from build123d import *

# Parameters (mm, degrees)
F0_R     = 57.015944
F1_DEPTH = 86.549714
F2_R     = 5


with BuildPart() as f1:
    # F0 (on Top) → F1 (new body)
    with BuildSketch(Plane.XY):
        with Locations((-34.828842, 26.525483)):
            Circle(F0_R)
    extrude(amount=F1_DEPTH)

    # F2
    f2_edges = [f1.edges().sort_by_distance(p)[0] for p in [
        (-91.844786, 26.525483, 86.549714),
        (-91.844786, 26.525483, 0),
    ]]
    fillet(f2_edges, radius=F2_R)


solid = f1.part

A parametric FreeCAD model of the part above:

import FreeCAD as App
import Part
import Sketcher

V = App.Vector
Q = App.Units.Quantity


def edges_at(feature, points):
    """Names of the edges that pass closest to the given points."""
    edges = feature.Shape.Edges
    near = lambda p: min(range(len(edges)), key=lambda i: edges[i].distToShape(Part.Vertex(*p))[0])
    return sorted({f"Edge{near(p) + 1}" for p in points})

doc = App.newDocument("Part")
body = doc.addObject("PartDesign::Body", "Body")

sketch1 = body.newObject("Sketcher::SketchObject", "Sketch")
sketch1.AttachmentSupport = (doc.getObject("XY_Plane"), [""])
sketch1.MapMode = "FlatFace"
sketch1.addGeometry(Part.Circle(V(-35, 27, 0), V(0, 0, 1), 57), False)
sketch1.addConstraint([
    Sketcher.Constraint("Diameter", 0, Q("114.031888 mm")),
    Sketcher.Constraint("DistanceX", 0, 3, -1, 1, Q("34.828842 mm")),
    Sketcher.Constraint("DistanceY", -1, 1, 0, 3, Q("26.525483 mm")),
])
pad1 = body.newObject("PartDesign::Pad", "Pad")
pad1.Profile = sketch1
pad1.Length = 86.549714
doc.recompute()

fillet = body.newObject("PartDesign::Fillet", "Fillet")
fillet.Base = (pad1, edges_at(pad1, [(-91.845, 26.525, 86.55), (-91.845, 26.525, 0)]))
fillet.Radius = 5

doc.recompute()
